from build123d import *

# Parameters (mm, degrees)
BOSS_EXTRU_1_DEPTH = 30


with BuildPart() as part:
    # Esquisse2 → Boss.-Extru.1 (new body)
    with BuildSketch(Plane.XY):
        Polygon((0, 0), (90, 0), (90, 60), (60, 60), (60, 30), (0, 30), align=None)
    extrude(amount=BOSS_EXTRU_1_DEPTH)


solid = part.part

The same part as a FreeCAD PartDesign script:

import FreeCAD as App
import Part
import Sketcher
Q = App.Units.Quantity


def add_polygon(sketch, points):
    """Adds a closed chain of lines whose ends are joined by coincident constraints."""
    first, n = sketch.GeometryCount, len(points)
    for a, b in zip(points, points[1:] + points[:1]):
        sketch.addGeometry(Part.LineSegment(App.Vector(*a, 0), App.Vector(*b, 0)), False)
    for i in range(n):
        sketch.addConstraint(Sketcher.Constraint("Coincident", first + i, 2, first + (i + 1) % n, 1))

doc = App.newDocument("Part")
params = doc.addObject("Spreadsheet::Sheet", "Params")
for row, (alias, value) in enumerate([
    ("sketch1_width", "90 mm"),
    ("pad1_length", "30 mm"),
], start=1):
    params.set(f"A{row}", alias)
    params.set(f"B{row}", "=" + value)
    params.setAlias(f"B{row}", alias)

body = doc.addObject("PartDesign::Body", "Body")

# Sketch on XY plane
sketch1 = doc.addObject("Sketcher::SketchObject", "Sketch")
body.addObject(sketch1)
sketch1.AttachmentSupport = (doc.XY_Plane, [""])
sketch1.MapMode = "FlatFace"
add_polygon(sketch1, [(0, 0), (90, 0), (90, 60), (60, 60), (60, 30), (0, 30)])  # lines 0-5
sketch1.addConstraint([
    Sketcher.Constraint("Horizontal", 0),
    Sketcher.Constraint("Vertical", 1),
    Sketcher.Constraint("Horizontal", 2),
    Sketcher.Constraint("Vertical", 3),
    Sketcher.Constraint("Horizontal", 4),
    Sketcher.Constraint("Vertical", 5),
    Sketcher.Constraint("Coincident", 5, 2, -1, 1),
    Sketcher.Constraint("Equal", 4, 1),
    Sketcher.Constraint("Equal", 2, 3),
    Sketcher.Constraint("Equal", 3, 5),
    Sketcher.Constraint("DistanceX", 0, 1, 0, 2, Q("90 mm")),
])
sketch1.setExpression("Constraints[16]", "Params.sketch1_width")
pad1 = doc.addObject("PartDesign::Pad", "Pad")
body.addObject(pad1)
pad1.Profile = sketch1
pad1.setExpression("Length", "Params.pad1_length")

doc.recompute()
